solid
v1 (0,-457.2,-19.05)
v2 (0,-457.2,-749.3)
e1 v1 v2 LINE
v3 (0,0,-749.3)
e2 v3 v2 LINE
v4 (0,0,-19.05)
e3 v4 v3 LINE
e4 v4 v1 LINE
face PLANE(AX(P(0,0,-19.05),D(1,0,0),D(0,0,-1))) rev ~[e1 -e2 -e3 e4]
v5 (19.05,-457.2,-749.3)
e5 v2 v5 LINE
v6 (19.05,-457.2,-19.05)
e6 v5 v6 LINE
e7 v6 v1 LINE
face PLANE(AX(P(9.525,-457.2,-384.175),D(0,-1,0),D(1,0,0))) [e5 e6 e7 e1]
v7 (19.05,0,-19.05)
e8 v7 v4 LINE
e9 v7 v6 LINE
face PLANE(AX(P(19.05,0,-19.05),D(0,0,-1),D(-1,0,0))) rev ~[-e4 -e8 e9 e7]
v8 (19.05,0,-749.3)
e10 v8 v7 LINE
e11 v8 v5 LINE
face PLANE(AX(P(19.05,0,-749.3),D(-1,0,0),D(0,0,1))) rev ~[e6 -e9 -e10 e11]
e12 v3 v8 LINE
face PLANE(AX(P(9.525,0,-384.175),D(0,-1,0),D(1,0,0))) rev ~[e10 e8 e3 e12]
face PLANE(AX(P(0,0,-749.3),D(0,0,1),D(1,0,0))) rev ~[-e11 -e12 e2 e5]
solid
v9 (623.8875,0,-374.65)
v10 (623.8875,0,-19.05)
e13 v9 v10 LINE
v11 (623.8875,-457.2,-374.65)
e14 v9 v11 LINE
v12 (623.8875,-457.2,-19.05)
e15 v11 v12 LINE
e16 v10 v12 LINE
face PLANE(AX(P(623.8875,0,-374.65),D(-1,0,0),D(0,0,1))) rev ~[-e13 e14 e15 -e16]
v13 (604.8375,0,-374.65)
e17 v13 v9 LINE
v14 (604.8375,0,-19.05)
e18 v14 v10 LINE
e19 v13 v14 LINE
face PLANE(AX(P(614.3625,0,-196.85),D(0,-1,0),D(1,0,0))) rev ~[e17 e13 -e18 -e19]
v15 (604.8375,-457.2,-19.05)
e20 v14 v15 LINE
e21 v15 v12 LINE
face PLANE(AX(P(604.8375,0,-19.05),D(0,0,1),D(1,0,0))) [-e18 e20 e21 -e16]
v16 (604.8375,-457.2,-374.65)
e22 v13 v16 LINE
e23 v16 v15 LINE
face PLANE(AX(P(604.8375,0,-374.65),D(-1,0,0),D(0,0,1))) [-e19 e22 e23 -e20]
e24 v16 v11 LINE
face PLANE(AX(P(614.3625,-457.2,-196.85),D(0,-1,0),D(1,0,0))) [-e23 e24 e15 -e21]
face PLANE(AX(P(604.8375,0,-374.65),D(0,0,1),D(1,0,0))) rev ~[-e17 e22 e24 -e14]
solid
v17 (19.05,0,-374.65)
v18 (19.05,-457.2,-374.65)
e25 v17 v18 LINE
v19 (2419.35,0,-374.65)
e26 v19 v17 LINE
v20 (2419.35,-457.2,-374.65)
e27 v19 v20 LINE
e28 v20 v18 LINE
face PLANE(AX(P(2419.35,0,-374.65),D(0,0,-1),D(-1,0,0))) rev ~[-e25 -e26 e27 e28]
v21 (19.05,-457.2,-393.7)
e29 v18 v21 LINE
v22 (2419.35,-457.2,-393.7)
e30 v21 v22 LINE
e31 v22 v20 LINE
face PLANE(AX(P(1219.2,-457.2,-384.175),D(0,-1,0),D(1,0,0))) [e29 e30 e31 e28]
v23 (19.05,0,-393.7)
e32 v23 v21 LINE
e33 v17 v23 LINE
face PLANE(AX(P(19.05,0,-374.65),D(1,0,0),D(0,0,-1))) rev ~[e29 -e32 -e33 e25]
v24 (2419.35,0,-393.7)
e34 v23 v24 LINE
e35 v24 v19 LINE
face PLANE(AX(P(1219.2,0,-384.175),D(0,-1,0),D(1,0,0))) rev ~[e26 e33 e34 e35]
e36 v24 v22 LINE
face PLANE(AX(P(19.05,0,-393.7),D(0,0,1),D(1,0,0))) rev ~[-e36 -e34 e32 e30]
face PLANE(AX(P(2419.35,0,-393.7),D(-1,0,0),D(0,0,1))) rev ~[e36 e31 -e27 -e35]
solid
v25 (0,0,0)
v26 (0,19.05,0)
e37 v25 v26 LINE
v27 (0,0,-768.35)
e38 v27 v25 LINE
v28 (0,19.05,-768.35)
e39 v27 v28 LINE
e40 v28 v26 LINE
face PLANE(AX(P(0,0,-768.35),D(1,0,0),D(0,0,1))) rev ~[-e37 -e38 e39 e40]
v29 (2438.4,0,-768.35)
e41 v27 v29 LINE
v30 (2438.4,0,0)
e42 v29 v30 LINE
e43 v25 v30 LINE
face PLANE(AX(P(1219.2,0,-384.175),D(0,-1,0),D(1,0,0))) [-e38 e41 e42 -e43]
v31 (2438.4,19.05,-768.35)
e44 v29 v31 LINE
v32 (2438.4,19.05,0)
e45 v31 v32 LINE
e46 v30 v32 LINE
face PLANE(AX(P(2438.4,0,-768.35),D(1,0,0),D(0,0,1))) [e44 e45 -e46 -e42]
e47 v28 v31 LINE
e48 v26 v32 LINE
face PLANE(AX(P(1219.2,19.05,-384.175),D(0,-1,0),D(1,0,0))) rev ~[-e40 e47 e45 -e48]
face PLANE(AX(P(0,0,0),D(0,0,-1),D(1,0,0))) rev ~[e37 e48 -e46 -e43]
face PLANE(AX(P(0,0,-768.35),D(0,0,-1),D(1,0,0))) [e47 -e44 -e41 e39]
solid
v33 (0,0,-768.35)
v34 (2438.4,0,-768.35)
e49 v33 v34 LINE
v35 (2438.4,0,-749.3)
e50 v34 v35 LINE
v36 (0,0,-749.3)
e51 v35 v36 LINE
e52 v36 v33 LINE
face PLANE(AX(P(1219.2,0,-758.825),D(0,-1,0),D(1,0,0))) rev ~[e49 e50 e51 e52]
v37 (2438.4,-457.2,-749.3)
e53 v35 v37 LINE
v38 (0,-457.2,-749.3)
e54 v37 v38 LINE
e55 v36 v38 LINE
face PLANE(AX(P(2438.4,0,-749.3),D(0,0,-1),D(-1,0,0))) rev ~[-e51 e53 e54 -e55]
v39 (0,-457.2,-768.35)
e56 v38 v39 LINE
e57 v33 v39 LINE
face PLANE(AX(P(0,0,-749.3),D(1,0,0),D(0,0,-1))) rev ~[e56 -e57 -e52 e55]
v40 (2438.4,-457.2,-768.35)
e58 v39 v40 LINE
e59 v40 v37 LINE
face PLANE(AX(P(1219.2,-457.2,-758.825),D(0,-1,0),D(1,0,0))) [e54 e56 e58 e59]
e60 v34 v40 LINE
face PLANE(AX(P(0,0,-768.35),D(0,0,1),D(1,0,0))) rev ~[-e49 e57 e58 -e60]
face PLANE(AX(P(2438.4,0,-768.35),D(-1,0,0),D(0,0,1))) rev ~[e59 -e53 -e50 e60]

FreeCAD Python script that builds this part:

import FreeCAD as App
import Part
import Sketcher

V = App.Vector
Q = App.Units.Quantity

doc = App.newDocument("Part")
params = doc.addObject("Spreadsheet::Sheet", "Params")
for row, (alias, value) in enumerate([
    ("sketch1_width", "96 in"),
    ("sketch1_height", "0.75 in"),
    ("pad1_length", "18 in"),
    ("sketch2_width", "0.75 in"),
    ("sketch2_height", "28.75 in"),
    ("pad2_length", "18 in"),
    ("sketch3_width", "94.5 in"),
    ("sketch3_height", "0.75 in"),
    ("pad3_length", "18 in"),
    ("sketch4_height", "14 in"),
    ("sketch4_width", "0.75 in"),
    ("pad4_length", "18 in"),
    ("sketch5_width", "96 in"),
    ("sketch5_height", "30.25 in"),
    ("pad5_length", "0.75 in"),
], start=1):
    params.set(f"A{row}", alias)
    params.set(f"B{row}", "=" + value)
    params.setAlias(f"B{row}", alias)

body = doc.addObject("PartDesign::Body", "Body")

# Sketch on XZ plane
sketch1 = body.newObject("Sketcher::SketchObject", "Sketch")
sketch1.AttachmentSupport = (doc.getObject("XZ_Plane"), [""])
sketch1.MapMode = "FlatFace"
sketch1.addGeometry(Part.LineSegment(V(0, -749.3, 0), V(0, -768.35, 0)), False)
sketch1.addGeometry(Part.LineSegment(V(0, -768.35, 0), V(2438.4, -768.35, 0)), False)
sketch1.addGeometry(Part.LineSegment(V(2438.4, -768.35, 0), V(2438.4, -749.3, 0)), False)
sketch1.addGeometry(Part.LineSegment(V(2438.4, -749.3, 0), V(0, -749.3, 0)), False)
sketch1.addConstraint(Sketcher.Constraint("Coincident", 0, 2, 1, 1))
sketch1.addConstraint(Sketcher.Constraint("Coincident", 1, 2, 2, 1))
sketch1.addConstraint(Sketcher.Constraint("Coincident", 2, 2, 3, 1))
sketch1.addConstraint(Sketcher.Constraint("Coincident", 3, 2, 0, 1))
sketch1.addConstraint(Sketcher.Constraint("Vertical", 0))
sketch1.addConstraint(Sketcher.Constraint("Horizontal", 1))
sketch1.addConstraint(Sketcher.Constraint("Vertical", 2))
sketch1.addConstraint(Sketcher.Constraint("Horizontal", 3))
sketch1.addConstraint(Sketcher.Constraint("PointOnObject", 0, 2, -2))
sketch1.addConstraint(Sketcher.Constraint("DistanceX", 1, 1, 1, 2, Q("96 in")))
sketch1.addConstraint(Sketcher.Constraint("DistanceY", 0, 2, 0, 1, Q("0.75 in")))
sketch1.addConstraint(Sketcher.Constraint("DistanceY", 2, 2, -1, 1, Q("29.5 in")))
sketch1.setExpression("Constraints[9]", "Params.sketch1_width")
sketch1.setExpression("Constraints[10]", "Params.sketch1_height")
pad1 = body.newObject("PartDesign::Pad", "Pad")
pad1.Profile = sketch1
pad1.setExpression("Length", "Params.pad1_length")
body2 = doc.addObject("PartDesign::Body", "Body001")

# Sketch on XZ plane
sketch2 = body2.newObject("Sketcher::SketchObject", "Sketch001")
sketch2.AttachmentSupport = (doc.getObject("XZ_Plane001"), [""])
sketch2.MapMode = "FlatFace"
sketch2.addGeometry(Part.LineSegment(V(19.05, -19.05, 0), V(0, -19.05, 0)), False)
sketch2.addGeometry(Part.LineSegment(V(0, -19.05, 0), V(0, -749.3, 0)), False)
sketch2.addGeometry(Part.LineSegment(V(0, -749.3, 0), V(19.05, -749.3, 0)), False)
sketch2.addGeometry(Part.LineSegment(V(19.05, -749.3, 0), V(19.05, -19.05, 0)), False)
sketch2.addConstraint(Sketcher.Constraint("Coincident", 0, 2, 1, 1))
sketch2.addConstraint(Sketcher.Constraint("Coincident", 1, 2, 2, 1))
sketch2.addConstraint(Sketcher.Constraint("Coincident", 2, 2, 3, 1))
sketch2.addConstraint(Sketcher.Constraint("Coincident", 3, 2, 0, 1))
sketch2.addConstraint(Sketcher.Constraint("Horizontal", 0))
sketch2.addConstraint(Sketcher.Constraint("Vertical", 1))
sketch2.addConstraint(Sketcher.Constraint("Horizontal", 2))
sketch2.addConstraint(Sketcher.Constraint("Vertical", 3))
sketch2.addConstraint(Sketcher.Constraint("PointOnObject", 0, 2, -2))
sketch2.addConstraint(Sketcher.Constraint("DistanceX", 0, 2, 0, 1, Q("0.75 in")))
sketch2.addConstraint(Sketcher.Constraint("DistanceY", 1, 2, 1, 1, Q("28.75 in")))
sketch2.addConstraint(Sketcher.Constraint("DistanceY", 1, 2, -1, 1, Q("29.5 in")))
sketch2.setExpression("Constraints[9]", "Params.sketch2_width")
sketch2.setExpression("Constraints[10]", "Params.sketch2_height")
pad2 = body2.newObject("PartDesign::Pad", "Pad001")
pad2.Profile = sketch2
pad2.setExpression("Length", "Params.pad2_length")
body3 = doc.addObject("PartDesign::Body", "Body002")

# Sketch on XZ plane
sketch3 = body3.newObject("Sketcher::SketchObject", "Sketch002")
sketch3.AttachmentSupport = (doc.getObject("XZ_Plane002"), [""])
sketch3.MapMode = "FlatFace"
sketch3.addGeometry(Part.LineSegment(V(19.05, -374.65, 0), V(19.05, -393.7, 0)), False)
sketch3.addGeometry(Part.LineSegment(V(19.05, -393.7, 0), V(2419.35, -393.7, 0)), False)
sketch3.addGeometry(Part.LineSegment(V(2419.35, -393.7, 0), V(2419.35, -374.65, 0)), False)
sketch3.addGeometry(Part.LineSegment(V(2419.35, -374.65, 0), V(19.05, -374.65, 0)), False)
sketch3.addConstraint(Sketcher.Constraint("Coincident", 0, 2, 1, 1))
sketch3.addConstraint(Sketcher.Constraint("Coincident", 1, 2, 2, 1))
sketch3.addConstraint(Sketcher.Constraint("Coincident", 2, 2, 3, 1))
sketch3.addConstraint(Sketcher.Constraint("Coincident", 3, 2, 0, 1))
sketch3.addConstraint(Sketcher.Constraint("Vertical", 0))
sketch3.addConstraint(Sketcher.Constraint("Horizontal", 1))
sketch3.addConstraint(Sketcher.Constraint("Vertical", 2))
sketch3.addConstraint(Sketcher.Constraint("Horizontal", 3))
sketch3.addConstraint(Sketcher.Constraint("DistanceX", 1, 1, 1, 2, Q("94.5 in")))
sketch3.addConstraint(Sketcher.Constraint("DistanceY", 0, 2, 0, 1, Q("0.75 in")))
sketch3.addConstraint(Sketcher.Constraint("DistanceY", 0, 2, -1, 1, Q("15.5 in")))
sketch3.addConstraint(Sketcher.Constraint("DistanceX", -1, 1, 0, 2, Q("0.75 in")))
sketch3.setExpression("Constraints[8]", "Params.sketch3_width")
sketch3.setExpression("Constraints[9]", "Params.sketch3_height")
pad3 = body3.newObject("PartDesign::Pad", "Pad002")
pad3.Profile = sketch3
pad3.setExpression("Length", "Params.pad3_length")
body4 = doc.addObject("PartDesign::Body", "Body003")

# Sketch on XZ plane
sketch4 = body4.newObject("Sketcher::SketchObject", "Sketch003")
sketch4.AttachmentSupport = (doc.getObject("XZ_Plane003"), [""])
sketch4.MapMode = "FlatFace"
sketch4.addGeometry(Part.LineSegment(V(604.8375, -19.05, 0), V(604.8375, -374.65, 0)), False)
sketch4.addGeometry(Part.LineSegment(V(604.8375, -374.65, 0), V(623.8875, -374.65, 0)), False)
sketch4.addGeometry(Part.LineSegment(V(623.8875, -374.65, 0), V(623.8875, -19.05, 0)), False)
sketch4.addGeometry(Part.LineSegment(V(623.8875, -19.05, 0), V(604.8375, -19.05, 0)), False)
sketch4.addConstraint(Sketcher.Constraint("Coincident", 0, 2, 1, 1))
sketch4.addConstraint(Sketcher.Constraint("Coincident", 1, 2, 2, 1))
sketch4.addConstraint(Sketcher.Constraint("Coincident", 2, 2, 3, 1))
sketch4.addConstraint(Sketcher.Constraint("Coincident", 3, 2, 0, 1))
sketch4.addConstraint(Sketcher.Constraint("Vertical", 0))
sketch4.addConstraint(Sketcher.Constraint("Horizontal", 1))
sketch4.addConstraint(Sketcher.Constraint("Vertical", 2))
sketch4.addConstraint(Sketcher.Constraint("Horizontal", 3))
sketch4.addConstraint(Sketcher.Constraint("DistanceY", 0, 2, 0, 1, Q("14 in")))
sketch4.addConstraint(Sketcher.Constraint("DistanceX", 1, 1, 1, 2, Q("0.75 in")))
sketch4.addConstraint(Sketcher.Constraint("DistanceY", 0, 2, -1, 1, Q("14.75 in")))
sketch4.addConstraint(Sketcher.Constraint("DistanceX", -1, 1, 0, 2, Q("23.8125 in")))
sketch4.setExpression("Constraints[8]", "Params.sketch4_height")
sketch4.setExpression("Constraints[9]", "Params.sketch4_width")
pad4 = body4.newObject("PartDesign::Pad", "Pad003")
pad4.Profile = sketch4
pad4.setExpression("Length", "Params.pad4_length")
body5 = doc.addObject("PartDesign::Body", "Body004")

# Sketch on XZ plane
sketch5 = body5.newObject("Sketcher::SketchObject", "Sketch004")
sketch5.AttachmentSupport = (doc.getObject("XZ_Plane004"), [""])
sketch5.MapMode = "FlatFace"
sketch5.addGeometry(Part.LineSegment(V(0, 0, 0), V(0, -768.35, 0)), False)
sketch5.addGeometry(Part.LineSegment(V(0, -768.35, 0), V(2438.4, -768.35, 0)), False)
sketch5.addGeometry(Part.LineSegment(V(2438.4, -768.35, 0), V(2438.4, 0, 0)), False)
sketch5.addGeometry(Part.LineSegment(V(2438.4, 0, 0), V(0, 0, 0)), False)
sketch5.addConstraint(Sketcher.Constraint("Coincident", 0, 2, 1, 1))
sketch5.addConstraint(Sketcher.Constraint("Coincident", 1, 2, 2, 1))
sketch5.addConstraint(Sketcher.Constraint("Coincident", 2, 2, 3, 1))
sketch5.addConstraint(Sketcher.Constraint("Coincident", 3, 2, 0, 1))
sketch5.addConstraint(Sketcher.Constraint("Vertical", 0))
sketch5.addConstraint(Sketcher.Constraint("Horizontal", 1))
sketch5.addConstraint(Sketcher.Constraint("Vertical", 2))
sketch5.addConstraint(Sketcher.Constraint("Horizontal", 3))
sketch5.addConstraint(Sketcher.Constraint("Coincident", 3, 2, -1, 1))
sketch5.addConstraint(Sketcher.Constraint("DistanceX", 1, 1, 1, 2, Q("96 in")))
sketch5.addConstraint(Sketcher.Constraint("DistanceY", 0, 2, 0, 1, Q("30.25 in")))
sketch5.setExpression("Constraints[9]", "Params.sketch5_width")
sketch5.setExpression("Constraints[10]", "Params.sketch5_height")
pad5 = body5.newObject("PartDesign::Pad", "Pad004")
pad5.Profile = sketch5
pad5.setExpression("Length", "Params.pad5_length")
pad5.Reversed = True

doc.recompute()
